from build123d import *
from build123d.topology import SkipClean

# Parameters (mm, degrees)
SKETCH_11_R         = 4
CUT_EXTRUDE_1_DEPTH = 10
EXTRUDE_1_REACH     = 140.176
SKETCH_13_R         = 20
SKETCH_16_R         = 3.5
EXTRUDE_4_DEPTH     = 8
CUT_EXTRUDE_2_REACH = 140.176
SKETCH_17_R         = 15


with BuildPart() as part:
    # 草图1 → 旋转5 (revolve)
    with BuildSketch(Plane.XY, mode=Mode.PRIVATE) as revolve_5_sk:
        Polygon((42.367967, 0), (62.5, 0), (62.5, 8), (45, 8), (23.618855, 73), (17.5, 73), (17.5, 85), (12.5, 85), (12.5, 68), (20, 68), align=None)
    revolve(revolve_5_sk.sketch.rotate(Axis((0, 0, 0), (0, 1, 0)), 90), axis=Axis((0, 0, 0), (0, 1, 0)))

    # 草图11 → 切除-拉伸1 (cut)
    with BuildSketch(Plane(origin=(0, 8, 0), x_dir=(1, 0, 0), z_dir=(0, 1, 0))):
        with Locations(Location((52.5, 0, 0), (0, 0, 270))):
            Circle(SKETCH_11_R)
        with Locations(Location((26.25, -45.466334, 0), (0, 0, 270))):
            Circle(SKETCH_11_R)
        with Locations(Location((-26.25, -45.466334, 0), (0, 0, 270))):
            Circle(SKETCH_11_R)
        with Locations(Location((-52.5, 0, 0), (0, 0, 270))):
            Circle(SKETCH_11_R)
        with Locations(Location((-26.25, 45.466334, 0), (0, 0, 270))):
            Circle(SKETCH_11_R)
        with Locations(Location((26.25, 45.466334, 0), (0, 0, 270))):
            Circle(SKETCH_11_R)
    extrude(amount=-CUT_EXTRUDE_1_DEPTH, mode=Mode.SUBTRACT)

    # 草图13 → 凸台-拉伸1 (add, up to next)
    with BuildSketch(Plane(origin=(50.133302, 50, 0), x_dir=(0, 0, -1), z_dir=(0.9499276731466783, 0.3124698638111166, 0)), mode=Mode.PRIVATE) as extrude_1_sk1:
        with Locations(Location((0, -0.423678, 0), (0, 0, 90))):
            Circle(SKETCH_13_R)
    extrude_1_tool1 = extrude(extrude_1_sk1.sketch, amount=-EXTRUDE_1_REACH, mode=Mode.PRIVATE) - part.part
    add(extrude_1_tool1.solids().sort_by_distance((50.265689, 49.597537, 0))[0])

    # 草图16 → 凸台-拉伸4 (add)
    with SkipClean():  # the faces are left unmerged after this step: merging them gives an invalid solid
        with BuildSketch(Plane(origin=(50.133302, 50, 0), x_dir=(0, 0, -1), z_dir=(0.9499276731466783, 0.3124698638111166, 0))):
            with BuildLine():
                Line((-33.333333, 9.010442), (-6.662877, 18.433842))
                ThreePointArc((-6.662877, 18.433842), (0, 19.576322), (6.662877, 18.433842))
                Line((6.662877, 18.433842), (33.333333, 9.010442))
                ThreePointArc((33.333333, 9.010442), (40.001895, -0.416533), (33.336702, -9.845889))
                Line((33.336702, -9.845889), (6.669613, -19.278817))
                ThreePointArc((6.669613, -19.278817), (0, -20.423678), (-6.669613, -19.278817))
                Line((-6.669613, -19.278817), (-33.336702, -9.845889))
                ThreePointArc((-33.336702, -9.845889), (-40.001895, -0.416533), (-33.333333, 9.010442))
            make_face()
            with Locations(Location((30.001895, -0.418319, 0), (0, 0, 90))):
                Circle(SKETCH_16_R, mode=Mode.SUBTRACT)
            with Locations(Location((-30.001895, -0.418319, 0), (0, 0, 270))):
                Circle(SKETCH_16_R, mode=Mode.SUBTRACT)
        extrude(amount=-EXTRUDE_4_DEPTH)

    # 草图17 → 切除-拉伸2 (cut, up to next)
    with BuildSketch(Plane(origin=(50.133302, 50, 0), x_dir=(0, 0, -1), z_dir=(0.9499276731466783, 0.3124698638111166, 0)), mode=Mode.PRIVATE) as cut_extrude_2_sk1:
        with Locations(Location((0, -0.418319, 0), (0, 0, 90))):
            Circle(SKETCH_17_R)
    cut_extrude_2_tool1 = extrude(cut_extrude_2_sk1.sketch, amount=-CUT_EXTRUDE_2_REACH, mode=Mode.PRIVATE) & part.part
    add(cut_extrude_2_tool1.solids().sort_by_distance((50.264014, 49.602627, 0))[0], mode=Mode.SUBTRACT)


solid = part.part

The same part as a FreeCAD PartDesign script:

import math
import FreeCAD as App
import Part
import Sketcher
from FreeCAD import Vector


def add_polygon(sketch, points):
    """Adds a closed chain of lines whose ends are joined by coincident constraints."""
    first, n = sketch.GeometryCount, len(points)
    for a, b in zip(points, points[1:] + points[:1]):
        sketch.addGeometry(Part.LineSegment(App.Vector(*a, 0), App.Vector(*b, 0)), False)
    for i in range(n):
        sketch.addConstraint(Sketcher.Constraint("Coincident", first + i, 2, first + (i + 1) % n, 1))

doc = App.newDocument("Part")
body = doc.addObject("PartDesign::Body", "Body")

sketch1 = doc.addObject("Sketcher::SketchObject", "Sketch")
body.addObject(sketch1)
sketch1.AttachmentSupport = (doc.XY_Plane, [""])
sketch1.MapMode = "FlatFace"
add_polygon(sketch1, [(42, 0), (62, 0), (62, 8), (45, 8), (24, 73), (18, 73), (18, 85), (12, 85), (12, 68), (20, 68)])
sketch1.addConstraint(Sketcher.Constraint("Horizontal", 0))
sketch1.addConstraint(Sketcher.Constraint("Vertical", 1))
sketch1.addConstraint(Sketcher.Constraint("Horizontal", 2))
sketch1.addConstraint(Sketcher.Constraint("Horizontal", 4))
sketch1.addConstraint(Sketcher.Constraint("Vertical", 5))
sketch1.addConstraint(Sketcher.Constraint("Horizontal", 6))
sketch1.addConstraint(Sketcher.Constraint("Vertical", 7))
sketch1.addConstraint(Sketcher.Constraint("Horizontal", 8))
sketch1.addConstraint(Sketcher.Constraint("PointOnObject", 0, 2, -1))
sketch1.addConstraint(Sketcher.Constraint("Parallel", 3, 9))
sketch1.addConstraint(Sketcher.Constraint("DistanceX", 6, 2, 6, 1, 5.0))
sketch1.addConstraint(Sketcher.Constraint("DistanceY", 1, 1, 1, 2, 8.0))
sketch1.addConstraint(Sketcher.Constraint("DistanceY", 5, 1, 5, 2, 12.0))
sketch1.addConstraint(Sketcher.Constraint("DistanceY", 7, 2, 7, 1, 17.0))
sketch1.addConstraint(Sketcher.Constraint("DistanceX", 2, 2, 2, 1, 17.5))
sketch1.addConstraint(Sketcher.Constraint("DistanceX", 8, 1, 8, 2, 7.5))
sketch1.addConstraint(Sketcher.Constraint("DistanceX", -1, 1, 2, 2, 45.0))
sketch1.addConstraint(Sketcher.Constraint("DistanceY", -1, 1, 3, 2, 73.0))
sketch1.addConstraint(Sketcher.Constraint("DistanceX", -1, 1, 8, 2, 20.0))
sketch1.addConstraint(Sketcher.Constraint("DistanceX", 0, 1, 0, 2, 20.132033))
revolution = doc.addObject("PartDesign::Revolution", "Revolution")
body.addObject(revolution)
revolution.Profile = sketch1
revolution.ReferenceAxis = (sketch1, ["V_Axis"])
revolution.Angle = 360

sketch2 = doc.addObject("Sketcher::SketchObject", "Sketch001")
body.addObject(sketch2)
sketch2.AttachmentSupport = (doc.XZ_Plane, [""])
sketch2.MapMode = "FlatFace"
sketch2.AttachmentOffset = App.Placement(Vector(0, 0, -8), App.Rotation())
sketch2.addGeometry(Part.Circle(Vector(52.5, 0, 0), Vector(0, 0, 1), 4), False)
sketch2.addGeometry(Part.Circle(Vector(26.2, 45.5, 0), Vector(0, 0, 1), 4), False)
sketch2.addGeometry(Part.Circle(Vector(-26.2, 45.5, 0), Vector(0, 0, 1), 4), False)
sketch2.addGeometry(Part.Circle(Vector(-52.5, 0, 0), Vector(0, 0, 1), 4), False)
sketch2.addGeometry(Part.Circle(Vector(-26.2, -45.5, 0), Vector(0, 0, 1), 4), False)
sketch2.addGeometry(Part.Circle(Vector(26.2, -45.5, 0), Vector(0, 0, 1), 4), False)
sketch2.addConstraint(Sketcher.Constraint("Equal", 0, 1))
sketch2.addConstraint(Sketcher.Constraint("Equal", 1, 2))
sketch2.addConstraint(Sketcher.Constraint("Equal", 2, 3))
sketch2.addConstraint(Sketcher.Constraint("Equal", 3, 4))
sketch2.addConstraint(Sketcher.Constraint("Equal", 4, 5))
sketch2.addConstraint(Sketcher.Constraint("Symmetric", 0, 3, 3, 3, -1, 1))
sketch2.addConstraint(Sketcher.Constraint("Symmetric", 1, 3, 4, 3, -1, 1))
sketch2.addConstraint(Sketcher.Constraint("Symmetric", 2, 3, 5, 3, -1, 1))
sketch2.addConstraint(Sketcher.Constraint("Symmetric", 1, 3, 2, 3, -2))
sketch2.addConstraint(Sketcher.Constraint("PointOnObject", 0, 3, -1))
sketch2.addConstraint(Sketcher.Constraint("Diameter", 0, 8.0))
sketch2.addConstraint(Sketcher.Constraint("DistanceX", 3, 3, 0, 3, 105.0))
sketch2.addConstraint(Sketcher.Constraint("DistanceX", 2, 3, 1, 3, 52.5))
sketch2.addConstraint(Sketcher.Constraint("DistanceY", 4, 3, 2, 3, 90.932668))
pocket1 = doc.addObject("PartDesign::Pocket", "Pocket")
body.addObject(pocket1)
pocket1.Profile = sketch2
pocket1.Length = 10
pocket1.Reversed = True

sketch3 = doc.addObject("Sketcher::SketchObject", "Sketch002")
body.addObject(sketch3)
sketch3.Placement = App.Placement(Vector(50.133302, 50, 0), App.Rotation(Vector(0, 0, -1), Vector(-0.312469864, 0.949927673, 0), Vector(0.949927673, 0.312469864, 0), "ZXY"))
sketch3.addGeometry(Part.Circle(Vector(0, 0, 0), Vector(0, 0, 1), 20), False)
sketch3.addConstraint(Sketcher.Constraint("PointOnObject", 0, 3, -2))
sketch3.addConstraint(Sketcher.Constraint("Diameter", 0, 40.0))
sketch3.addConstraint(Sketcher.Constraint("DistanceY", 0, 3, -1, 1, 0.423678))
pad1 = doc.addObject("PartDesign::Pad", "Pad")
body.addObject(pad1)
pad1.Profile = sketch3
pad1.Type = "UpToFirst"
pad1.Reversed = True

sketch4 = doc.addObject("Sketcher::SketchObject", "Sketch003")
body.addObject(sketch4)
sketch4.Placement = App.Placement(Vector(50.133302, 50, 0), App.Rotation(Vector(0, 0, -1), Vector(-0.312469864, 0.949927673, 0), Vector(0.949927673, 0.312469864, 0), "ZXY"))
sketch4.addGeometry(Part.LineSegment(Vector(-6.7, 18.4, 0), Vector(-33.3, 9, 0)), False)
sketch4.addGeometry(Part.ArcOfCircle(Part.Circle(Vector(-30, -0.4, 0), Vector(0, 0, 1), 10), math.radians(109), math.radians(251)), False)
sketch4.addGeometry(Part.LineSegment(Vector(-33.3, -9.8, 0), Vector(-6.7, -19.3, 0)), False)
sketch4.addGeometry(Part.ArcOfCircle(Part.Circle(Vector(0, -0.4, 0), Vector(0, 0, 1), 20), math.radians(-109), math.radians(-71)), False)
sketch4.addGeometry(Part.LineSegment(Vector(6.7, -19.3, 0), Vector(33.3, -9.8, 0)), False)
sketch4.addGeometry(Part.ArcOfCircle(Part.Circle(Vector(30, -0.4, 0), Vector(0, 0, 1), 10), math.radians(-71), math.radians(71)), False)
sketch4.addGeometry(Part.LineSegment(Vector(33.3, 9, 0), Vector(6.7, 18.4, 0)), False)
sketch4.addGeometry(Part.ArcOfCircle(Part.Circle(Vector(0, -0.4, 0), Vector(0, 0, 1), 20), math.radians(71), math.radians(109)), False)
sketch4.addGeometry(Part.Circle(Vector(30, -0.4, 0), Vector(0, 0, 1), 3.5), False)
sketch4.addGeometry(Part.Circle(Vector(-30, -0.4, 0), Vector(0, 0, 1), 3.5), False)
sketch4.addConstraint(Sketcher.Constraint("Tangent", 0, 2, 1, 1))
sketch4.addConstraint(Sketcher.Constraint("Tangent", 1, 2, 2, 1))
sketch4.addConstraint(Sketcher.Constraint("Tangent", 2, 2, 3, 1))
sketch4.addConstraint(Sketcher.Constraint("Tangent", 3, 2, 4, 1))
sketch4.addConstraint(Sketcher.Constraint("Tangent", 4, 2, 5, 1))
sketch4.addConstraint(Sketcher.Constraint("Tangent", 5, 2, 6, 1))
sketch4.addConstraint(Sketcher.Constraint("Tangent", 6, 2, 7, 1))
sketch4.addConstraint(Sketcher.Constraint("Tangent", 7, 2, 0, 1))
sketch4.addConstraint(Sketcher.Constraint("Coincident", 7, 3, 3, 3))
sketch4.addConstraint(Sketcher.Constraint("Coincident", 8, 3, 5, 3))
sketch4.addConstraint(Sketcher.Constraint("Coincident", 9, 3, 1, 3))
sketch4.addConstraint(Sketcher.Constraint("Equal", 1, 5))
sketch4.addConstraint(Sketcher.Constraint("Equal", 8, 9))
sketch4.addConstraint(Sketcher.Constraint("Symmetric", 1, 3, 5, 3, -2))
sketch4.addConstraint(Sketcher.Constraint("PointOnObject", 3, 3, -2))
sketch4.addConstraint(Sketcher.Constraint("Equal", 0, 2))
sketch4.addConstraint(Sketcher.Constraint("Diameter", 8, 7.0))
sketch4.addConstraint(Sketcher.Constraint("Radius", 1, 10.000001))
sketch4.addConstraint(Sketcher.Constraint("Radius", 3, 20.000002))
sketch4.addConstraint(Sketcher.Constraint("DistanceY", 5, 2, 6, 2, 9.4234))
sketch4.addConstraint(Sketcher.Constraint("Distance", 0, 28.286281))
sketch4.addConstraint(Sketcher.Constraint("DistanceY", 1, 3, -1, 1, 0.418319))
pad2 = doc.addObject("PartDesign::Pad", "Pad001")
body.addObject(pad2)
pad2.Profile = sketch4
pad2.Length = 8
pad2.Reversed = True

sketch5 = doc.addObject("Sketcher::SketchObject", "Sketch004")
body.addObject(sketch5)
sketch5.Placement = App.Placement(Vector(50.133302, 50, 0), App.Rotation(Vector(0, 0, -1), Vector(-0.312469864, 0.949927673, 0), Vector(0.949927673, 0.312469864, 0), "ZXY"))
sketch5.addGeometry(Part.Circle(Vector(0, 0, 0), Vector(0, 0, 1), 15), False)
sketch5.addConstraint(Sketcher.Constraint("PointOnObject", 0, 3, -2))
sketch5.addConstraint(Sketcher.Constraint("Diameter", 0, 30.0))
sketch5.addConstraint(Sketcher.Constraint("DistanceY", 0, 3, -1, 1, 0.418319))
pocket2 = doc.addObject("PartDesign::Pocket", "Pocket001")
body.addObject(pocket2)
pocket2.Profile = sketch5
pocket2.Type = "UpToFirst"

doc.recompute()
